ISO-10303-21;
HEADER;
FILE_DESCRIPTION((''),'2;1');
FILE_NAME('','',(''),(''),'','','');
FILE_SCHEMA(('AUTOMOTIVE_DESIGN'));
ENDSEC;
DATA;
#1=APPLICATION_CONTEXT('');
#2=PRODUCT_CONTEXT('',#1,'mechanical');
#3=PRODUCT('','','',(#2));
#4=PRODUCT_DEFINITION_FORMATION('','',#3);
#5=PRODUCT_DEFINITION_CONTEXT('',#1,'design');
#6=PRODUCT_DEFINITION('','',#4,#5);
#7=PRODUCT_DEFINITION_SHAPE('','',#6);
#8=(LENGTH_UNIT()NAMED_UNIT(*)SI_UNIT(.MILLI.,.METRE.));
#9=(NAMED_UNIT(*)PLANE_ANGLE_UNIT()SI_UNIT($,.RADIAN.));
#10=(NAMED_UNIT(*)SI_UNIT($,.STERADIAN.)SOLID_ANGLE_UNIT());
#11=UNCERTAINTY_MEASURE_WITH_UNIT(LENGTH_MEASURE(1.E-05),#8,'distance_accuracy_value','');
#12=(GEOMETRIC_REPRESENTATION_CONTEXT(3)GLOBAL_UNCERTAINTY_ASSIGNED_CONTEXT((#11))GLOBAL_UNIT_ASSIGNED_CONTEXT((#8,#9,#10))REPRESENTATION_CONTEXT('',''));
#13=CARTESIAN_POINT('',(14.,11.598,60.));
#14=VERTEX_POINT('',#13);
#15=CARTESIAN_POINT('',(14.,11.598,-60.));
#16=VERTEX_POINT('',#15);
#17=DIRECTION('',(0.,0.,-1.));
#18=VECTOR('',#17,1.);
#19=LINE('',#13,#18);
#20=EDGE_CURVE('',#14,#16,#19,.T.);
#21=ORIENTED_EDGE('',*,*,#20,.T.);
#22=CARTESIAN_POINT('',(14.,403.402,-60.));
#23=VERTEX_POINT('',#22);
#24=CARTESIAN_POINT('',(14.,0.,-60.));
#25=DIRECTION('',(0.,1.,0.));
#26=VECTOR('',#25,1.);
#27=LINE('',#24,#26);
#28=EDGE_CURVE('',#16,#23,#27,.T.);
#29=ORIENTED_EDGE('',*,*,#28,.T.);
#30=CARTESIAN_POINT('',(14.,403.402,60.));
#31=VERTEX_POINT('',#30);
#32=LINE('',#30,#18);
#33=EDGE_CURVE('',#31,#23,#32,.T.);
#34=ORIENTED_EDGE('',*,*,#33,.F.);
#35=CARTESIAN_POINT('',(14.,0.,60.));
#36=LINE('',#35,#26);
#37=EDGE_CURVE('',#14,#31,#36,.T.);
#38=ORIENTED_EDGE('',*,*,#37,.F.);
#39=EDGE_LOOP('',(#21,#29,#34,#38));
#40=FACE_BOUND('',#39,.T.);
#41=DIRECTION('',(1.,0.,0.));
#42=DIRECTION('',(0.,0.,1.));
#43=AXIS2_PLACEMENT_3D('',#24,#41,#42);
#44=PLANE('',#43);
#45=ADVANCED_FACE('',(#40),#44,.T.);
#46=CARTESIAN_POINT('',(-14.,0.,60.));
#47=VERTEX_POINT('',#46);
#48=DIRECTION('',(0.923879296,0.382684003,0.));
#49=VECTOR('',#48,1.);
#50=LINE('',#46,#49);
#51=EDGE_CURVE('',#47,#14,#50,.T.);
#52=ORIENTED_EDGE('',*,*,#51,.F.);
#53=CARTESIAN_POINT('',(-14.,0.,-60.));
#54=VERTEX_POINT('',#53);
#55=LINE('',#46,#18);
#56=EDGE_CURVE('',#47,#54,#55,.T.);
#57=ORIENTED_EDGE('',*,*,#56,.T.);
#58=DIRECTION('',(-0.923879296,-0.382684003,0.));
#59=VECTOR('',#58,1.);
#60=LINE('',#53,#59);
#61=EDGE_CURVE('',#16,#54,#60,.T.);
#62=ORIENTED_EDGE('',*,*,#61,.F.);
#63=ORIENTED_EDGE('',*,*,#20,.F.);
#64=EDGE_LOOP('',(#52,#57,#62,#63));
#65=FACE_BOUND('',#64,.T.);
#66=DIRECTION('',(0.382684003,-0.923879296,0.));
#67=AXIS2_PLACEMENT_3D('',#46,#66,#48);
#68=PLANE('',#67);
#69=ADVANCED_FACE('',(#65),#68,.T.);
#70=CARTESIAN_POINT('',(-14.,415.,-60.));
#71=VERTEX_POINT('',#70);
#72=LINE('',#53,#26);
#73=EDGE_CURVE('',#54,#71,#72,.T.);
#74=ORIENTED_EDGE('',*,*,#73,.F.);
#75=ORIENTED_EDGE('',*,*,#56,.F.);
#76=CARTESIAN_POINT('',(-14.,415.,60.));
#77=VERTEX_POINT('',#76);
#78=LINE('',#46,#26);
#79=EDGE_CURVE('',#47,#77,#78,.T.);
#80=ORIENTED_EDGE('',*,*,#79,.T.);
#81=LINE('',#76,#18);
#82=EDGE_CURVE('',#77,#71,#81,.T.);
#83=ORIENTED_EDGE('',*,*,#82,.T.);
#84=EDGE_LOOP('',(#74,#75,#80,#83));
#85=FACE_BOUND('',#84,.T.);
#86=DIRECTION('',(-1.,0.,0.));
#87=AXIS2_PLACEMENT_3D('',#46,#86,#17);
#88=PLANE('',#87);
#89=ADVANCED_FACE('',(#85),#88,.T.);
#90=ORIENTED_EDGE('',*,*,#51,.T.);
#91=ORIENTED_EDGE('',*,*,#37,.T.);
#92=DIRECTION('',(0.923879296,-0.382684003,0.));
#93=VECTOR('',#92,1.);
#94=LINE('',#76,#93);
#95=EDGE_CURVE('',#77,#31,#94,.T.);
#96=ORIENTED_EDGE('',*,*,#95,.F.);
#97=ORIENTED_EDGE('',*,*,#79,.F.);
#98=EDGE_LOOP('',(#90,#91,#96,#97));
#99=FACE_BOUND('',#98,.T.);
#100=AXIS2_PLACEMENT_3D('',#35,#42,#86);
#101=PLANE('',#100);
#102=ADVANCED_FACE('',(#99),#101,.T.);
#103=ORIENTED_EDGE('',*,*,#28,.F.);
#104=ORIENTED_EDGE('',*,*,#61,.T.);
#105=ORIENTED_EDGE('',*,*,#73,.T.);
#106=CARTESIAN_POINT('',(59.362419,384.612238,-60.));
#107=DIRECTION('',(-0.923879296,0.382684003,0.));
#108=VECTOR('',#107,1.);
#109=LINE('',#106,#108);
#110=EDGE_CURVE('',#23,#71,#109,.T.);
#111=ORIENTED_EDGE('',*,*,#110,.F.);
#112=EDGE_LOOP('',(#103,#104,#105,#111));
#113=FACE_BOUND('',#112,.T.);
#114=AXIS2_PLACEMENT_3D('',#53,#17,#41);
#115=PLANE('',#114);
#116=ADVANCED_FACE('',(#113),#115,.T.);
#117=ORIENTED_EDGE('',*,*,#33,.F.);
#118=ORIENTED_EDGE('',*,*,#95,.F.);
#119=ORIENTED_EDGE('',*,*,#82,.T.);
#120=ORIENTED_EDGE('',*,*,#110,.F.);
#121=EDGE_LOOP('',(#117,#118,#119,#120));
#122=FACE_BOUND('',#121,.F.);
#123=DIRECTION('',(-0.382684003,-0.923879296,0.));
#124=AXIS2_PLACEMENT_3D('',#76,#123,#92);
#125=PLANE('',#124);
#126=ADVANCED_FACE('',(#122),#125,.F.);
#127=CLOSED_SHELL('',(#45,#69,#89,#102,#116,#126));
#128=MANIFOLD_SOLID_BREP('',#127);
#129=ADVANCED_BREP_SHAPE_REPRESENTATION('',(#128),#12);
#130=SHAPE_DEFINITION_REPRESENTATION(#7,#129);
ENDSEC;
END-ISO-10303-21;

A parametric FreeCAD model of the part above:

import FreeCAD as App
import Part
import Sketcher
from FreeCAD import Vector
Q = App.Units.Quantity

doc = App.newDocument("Part")
body = doc.addObject("PartDesign::Body", "Body")

# Sketch on XZ plane
sketch1 = body.newObject("Sketcher::SketchObject", "Sketch")
sketch1.AttachmentSupport = (doc.getObject("XZ_Plane"), [""])
sketch1.MapMode = "FlatFace"
sketch1.addGeometry(Part.LineSegment(Vector(-14, 60, 0), Vector(-14, -60, 0)), False)
sketch1.addGeometry(Part.LineSegment(Vector(-14, -60, 0), Vector(14, -60, 0)), False)
sketch1.addGeometry(Part.LineSegment(Vector(14, -60, 0), Vector(14, 60, 0)), False)
sketch1.addGeometry(Part.LineSegment(Vector(14, 60, 0), Vector(-14, 60, 0)), False)
sketch1.addConstraint(Sketcher.Constraint("Coincident", 0, 2, 1, 1))
sketch1.addConstraint(Sketcher.Constraint("Coincident", 1, 2, 2, 1))
sketch1.addConstraint(Sketcher.Constraint("Coincident", 2, 2, 3, 1))
sketch1.addConstraint(Sketcher.Constraint("Coincident", 3, 2, 0, 1))
sketch1.addConstraint(Sketcher.Constraint("Vertical", 0))
sketch1.addConstraint(Sketcher.Constraint("Horizontal", 1))
sketch1.addConstraint(Sketcher.Constraint("Vertical", 2))
sketch1.addConstraint(Sketcher.Constraint("Horizontal", 3))
sketch1.addConstraint(Sketcher.Constraint("Symmetric", 0, 2, 2, 2, -1, 1))
sketch1.addConstraint(Sketcher.Constraint("DistanceX", 1, 1, 1, 2, Q("28 mm")))
sketch1.addConstraint(Sketcher.Constraint("DistanceY", 0, 2, 0, 1, Q("120 mm")))
pad1 = body.newObject("PartDesign::Pad", "Pad")
pad1.Profile = sketch1
pad1.Length = 415
pad1.Reversed = True

# Sketch on XY plane
sketch2 = body.newObject("Sketcher::SketchObject", "Sketch001")
sketch2.AttachmentSupport = (doc.getObject("XY_Plane"), [""])
sketch2.MapMode = "FlatFace"
sketch2.AttachmentOffset = App.Placement(Vector(0, 0, 60), App.Rotation())
sketch2.addGeometry(Part.LineSegment(Vector(14, 12, 0), Vector(-14, 0, 0)), False)
sketch2.addGeometry(Part.LineSegment(Vector(-14, 0, 0), Vector(14, 0, 0)), False)
sketch2.addGeometry(Part.LineSegment(Vector(14, 0, 0), Vector(14, 12, 0)), False)
sketch2.addGeometry(Part.LineSegment(Vector(14, 415, 0), Vector(-14, 415, 0)), False)
sketch2.addGeometry(Part.LineSegment(Vector(-14, 415, 0), Vector(14, 403, 0)), False)
sketch2.addGeometry(Part.LineSegment(Vector(14, 403, 0), Vector(14, 415, 0)), False)
sketch2.addConstraint(Sketcher.Constraint("Coincident", 0, 2, 1, 1))
sketch2.addConstraint(Sketcher.Constraint("Coincident", 1, 2, 2, 1))
sketch2.addConstraint(Sketcher.Constraint("Coincident", 2, 2, 0, 1))
sketch2.addConstraint(Sketcher.Constraint("Coincident", 3, 2, 4, 1))
sketch2.addConstraint(Sketcher.Constraint("Coincident", 4, 2, 5, 1))
sketch2.addConstraint(Sketcher.Constraint("Coincident", 5, 2, 3, 1))
sketch2.addConstraint(Sketcher.Constraint("Horizontal", 1))
sketch2.addConstraint(Sketcher.Constraint("Vertical", 2))
sketch2.addConstraint(Sketcher.Constraint("Horizontal", 3))
sketch2.addConstraint(Sketcher.Constraint("Vertical", 5))
sketch2.addConstraint(Sketcher.Constraint("Symmetric", 0, 2, 1, 2, -1, 1))
sketch2.addConstraint(Sketcher.Constraint("Vertical", 0, 2, 3, 2))
sketch2.addConstraint(Sketcher.Constraint("Vertical", 2, 2, 4, 2))
sketch2.addConstraint(Sketcher.Constraint("Equal", 2, 5))
sketch2.addConstraint(Sketcher.Constraint("DistanceX", 1, 1, 1, 2, Q("28 mm")))
sketch2.addConstraint(Sketcher.Constraint("DistanceY", -1, 1, 3, 2, Q("415 mm")))
sketch2.addConstraint(Sketcher.Constraint("Angle", 0, Q("-157.5 deg")))
pocket1 = body.newObject("PartDesign::Pocket", "Pocket")
pocket1.Profile = sketch2
pocket1.Length = 173.1206

doc.recompute()
